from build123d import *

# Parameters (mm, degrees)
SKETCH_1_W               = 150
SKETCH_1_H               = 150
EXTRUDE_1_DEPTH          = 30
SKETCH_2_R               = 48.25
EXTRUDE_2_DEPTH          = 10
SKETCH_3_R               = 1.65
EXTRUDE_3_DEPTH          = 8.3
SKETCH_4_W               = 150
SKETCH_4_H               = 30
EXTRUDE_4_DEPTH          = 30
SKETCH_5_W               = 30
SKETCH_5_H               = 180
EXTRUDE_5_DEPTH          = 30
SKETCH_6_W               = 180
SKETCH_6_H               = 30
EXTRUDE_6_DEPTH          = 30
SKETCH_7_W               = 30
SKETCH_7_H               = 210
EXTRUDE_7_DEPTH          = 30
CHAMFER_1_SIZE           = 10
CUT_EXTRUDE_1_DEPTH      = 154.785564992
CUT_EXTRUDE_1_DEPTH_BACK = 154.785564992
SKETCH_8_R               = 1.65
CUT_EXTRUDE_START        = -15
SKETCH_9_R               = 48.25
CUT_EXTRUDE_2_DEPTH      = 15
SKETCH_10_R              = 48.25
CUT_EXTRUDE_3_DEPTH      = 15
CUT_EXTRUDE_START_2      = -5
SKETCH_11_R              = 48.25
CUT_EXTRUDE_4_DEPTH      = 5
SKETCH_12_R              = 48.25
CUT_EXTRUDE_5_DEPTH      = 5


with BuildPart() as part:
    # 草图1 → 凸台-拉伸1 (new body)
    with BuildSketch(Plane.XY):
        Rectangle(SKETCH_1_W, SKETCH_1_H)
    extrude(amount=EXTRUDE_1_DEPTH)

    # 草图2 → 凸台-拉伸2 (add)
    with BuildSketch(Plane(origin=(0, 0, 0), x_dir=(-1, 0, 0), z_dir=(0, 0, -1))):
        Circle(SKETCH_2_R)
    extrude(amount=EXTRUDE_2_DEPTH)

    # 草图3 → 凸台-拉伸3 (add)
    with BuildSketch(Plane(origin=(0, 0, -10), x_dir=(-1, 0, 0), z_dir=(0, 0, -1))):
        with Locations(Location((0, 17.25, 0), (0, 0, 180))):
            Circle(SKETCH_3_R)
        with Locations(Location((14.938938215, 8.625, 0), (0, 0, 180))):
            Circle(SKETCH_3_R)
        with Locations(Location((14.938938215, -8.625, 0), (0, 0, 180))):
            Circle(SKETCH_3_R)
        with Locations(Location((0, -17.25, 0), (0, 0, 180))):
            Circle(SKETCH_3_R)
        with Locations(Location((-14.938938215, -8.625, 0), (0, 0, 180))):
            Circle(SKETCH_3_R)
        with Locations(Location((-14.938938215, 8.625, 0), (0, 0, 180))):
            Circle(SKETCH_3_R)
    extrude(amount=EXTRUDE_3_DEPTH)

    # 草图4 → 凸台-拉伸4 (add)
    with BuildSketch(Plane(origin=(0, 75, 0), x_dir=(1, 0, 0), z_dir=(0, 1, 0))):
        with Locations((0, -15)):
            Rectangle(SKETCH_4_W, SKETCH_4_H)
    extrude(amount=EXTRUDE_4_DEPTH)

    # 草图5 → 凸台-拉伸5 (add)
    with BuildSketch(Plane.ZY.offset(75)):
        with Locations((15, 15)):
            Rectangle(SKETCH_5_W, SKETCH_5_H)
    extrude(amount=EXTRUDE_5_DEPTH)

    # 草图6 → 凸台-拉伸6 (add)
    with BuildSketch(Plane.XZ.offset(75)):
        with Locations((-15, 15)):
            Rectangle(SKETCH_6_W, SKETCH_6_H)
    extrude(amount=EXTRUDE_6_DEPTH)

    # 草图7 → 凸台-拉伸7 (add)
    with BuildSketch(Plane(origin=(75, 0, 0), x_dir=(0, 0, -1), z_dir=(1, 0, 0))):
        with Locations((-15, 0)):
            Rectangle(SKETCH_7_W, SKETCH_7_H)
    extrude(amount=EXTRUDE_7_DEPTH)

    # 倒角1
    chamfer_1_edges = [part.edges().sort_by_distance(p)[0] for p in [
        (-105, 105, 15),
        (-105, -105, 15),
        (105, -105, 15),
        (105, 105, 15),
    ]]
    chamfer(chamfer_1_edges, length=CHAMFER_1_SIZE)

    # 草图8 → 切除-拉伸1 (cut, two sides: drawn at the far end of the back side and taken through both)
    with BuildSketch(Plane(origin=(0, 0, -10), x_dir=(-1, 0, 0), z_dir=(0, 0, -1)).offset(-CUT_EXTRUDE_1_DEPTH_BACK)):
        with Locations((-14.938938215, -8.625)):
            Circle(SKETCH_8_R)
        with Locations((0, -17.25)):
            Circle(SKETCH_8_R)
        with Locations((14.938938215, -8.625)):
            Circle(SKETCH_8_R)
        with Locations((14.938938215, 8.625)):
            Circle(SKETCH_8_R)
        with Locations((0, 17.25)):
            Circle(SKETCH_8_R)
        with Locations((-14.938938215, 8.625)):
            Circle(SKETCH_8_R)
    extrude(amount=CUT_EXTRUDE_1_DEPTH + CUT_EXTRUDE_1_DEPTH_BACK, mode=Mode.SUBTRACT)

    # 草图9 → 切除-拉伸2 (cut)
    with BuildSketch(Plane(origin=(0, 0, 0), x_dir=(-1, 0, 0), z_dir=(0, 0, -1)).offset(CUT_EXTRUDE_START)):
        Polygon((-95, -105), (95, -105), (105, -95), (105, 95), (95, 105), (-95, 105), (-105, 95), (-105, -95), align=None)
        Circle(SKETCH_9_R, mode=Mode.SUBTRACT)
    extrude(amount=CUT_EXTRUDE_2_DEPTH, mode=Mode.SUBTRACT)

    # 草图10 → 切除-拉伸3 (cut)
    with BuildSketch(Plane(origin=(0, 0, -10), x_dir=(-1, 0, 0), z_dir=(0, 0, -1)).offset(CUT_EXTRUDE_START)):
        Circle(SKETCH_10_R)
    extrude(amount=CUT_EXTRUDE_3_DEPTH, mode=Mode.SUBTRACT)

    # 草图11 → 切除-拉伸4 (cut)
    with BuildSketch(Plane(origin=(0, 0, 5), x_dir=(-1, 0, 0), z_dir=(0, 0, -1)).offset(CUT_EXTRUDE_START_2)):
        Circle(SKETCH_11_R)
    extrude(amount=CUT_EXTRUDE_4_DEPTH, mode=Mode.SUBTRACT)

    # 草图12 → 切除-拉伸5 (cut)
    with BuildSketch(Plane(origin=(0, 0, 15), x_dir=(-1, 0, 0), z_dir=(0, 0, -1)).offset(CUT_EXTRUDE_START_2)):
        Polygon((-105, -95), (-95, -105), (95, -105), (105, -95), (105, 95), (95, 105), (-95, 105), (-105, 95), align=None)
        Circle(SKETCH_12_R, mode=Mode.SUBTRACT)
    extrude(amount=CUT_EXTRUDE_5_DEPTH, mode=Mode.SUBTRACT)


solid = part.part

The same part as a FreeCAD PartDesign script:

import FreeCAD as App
import Part
import Sketcher
from FreeCAD import Vector
Q = App.Units.Quantity


def edges_at(feature, points):
    """Names of the edges that pass closest to the given points."""
    edges = feature.Shape.Edges
    near = lambda p: min(range(len(edges)), key=lambda i: edges[i].distToShape(Part.Vertex(*p))[0])
    return sorted({f"Edge{near(p) + 1}" for p in points})


def add_polygon(sketch, points):
    """Adds a closed chain of lines whose ends are joined by coincident constraints."""
    first, n = sketch.GeometryCount, len(points)
    for a, b in zip(points, points[1:] + points[:1]):
        sketch.addGeometry(Part.LineSegment(App.Vector(*a, 0), App.Vector(*b, 0)), False)
    for i in range(n):
        sketch.addConstraint(Sketcher.Constraint("Coincident", first + i, 2, first + (i + 1) % n, 1))

doc = App.newDocument("Part")
body = doc.addObject("PartDesign::Body", "Body")

# Sketch on XY plane
sketch1 = body.newObject("Sketcher::SketchObject", "Sketch")
sketch1.AttachmentSupport = (doc.getObject("XY_Plane"), [""])
sketch1.MapMode = "FlatFace"
add_polygon(sketch1, [(-75, 75), (-75, -75), (75, -75), (75, 75)])  # lines 0-3
sketch1.addConstraint([
    Sketcher.Constraint("Vertical", 0),
    Sketcher.Constraint("Horizontal", 1),
    Sketcher.Constraint("Vertical", 2),
    Sketcher.Constraint("Horizontal", 3),
    Sketcher.Constraint("Symmetric", 0, 2, 2, 2, -1, 1),
    Sketcher.Constraint("Equal", 3, 0),
    Sketcher.Constraint("DistanceX", 1, 1, 1, 2, Q("150 mm")),
])
pad1 = body.newObject("PartDesign::Pad", "Pad")
pad1.Profile = sketch1
pad1.Length = 30

# Sketch on XY plane
sketch2 = body.newObject("Sketcher::SketchObject", "Sketch001")
sketch2.AttachmentSupport = (doc.getObject("XY_Plane"), [""])
sketch2.MapMode = "FlatFace"
sketch2.addGeometry(Part.Circle(Vector(0, 0, 0), Vector(0, 0, 1), 48), False)
sketch2.addConstraint([
    Sketcher.Constraint("Coincident", 0, 3, -1, 1),
    Sketcher.Constraint("Diameter", 0, Q("96.5 mm")),
])
pad2 = body.newObject("PartDesign::Pad", "Pad001")
pad2.Profile = sketch2
pad2.Length = 10
pad2.Reversed = True

# Sketch on XY plane
sketch3 = body.newObject("Sketcher::SketchObject", "Sketch002")
sketch3.AttachmentSupport = (doc.getObject("XY_Plane"), [""])
sketch3.MapMode = "FlatFace"
sketch3.AttachmentOffset = App.Placement(Vector(0, 0, -10), App.Rotation())
sketch3.addGeometry([
    Part.Circle(Vector(0, 17.2, 0), Vector(0, 0, 1), 1.6),  # 0
    Part.Circle(Vector(-14.9, 8.6, 0), Vector(0, 0, 1), 1.6),  # 1
    Part.Circle(Vector(-14.9, -8.6, 0), Vector(0, 0, 1), 1.6),  # 2
    Part.Circle(Vector(0, -17.2, 0), Vector(0, 0, 1), 1.6),  # 3
    Part.Circle(Vector(14.9, -8.6, 0), Vector(0, 0, 1), 1.6),  # 4
    Part.Circle(Vector(14.9, 8.6, 0), Vector(0, 0, 1), 1.6),  # 5
], False)
sketch3.addConstraint([
    Sketcher.Constraint("Equal", 0, 1),
    Sketcher.Constraint("Equal", 1, 2),
    Sketcher.Constraint("Equal", 2, 3),
    Sketcher.Constraint("Equal", 3, 4),
    Sketcher.Constraint("Equal", 4, 5),
    Sketcher.Constraint("Symmetric", 0, 3, 3, 3, -1, 1),
    Sketcher.Constraint("Symmetric", 1, 3, 4, 3, -1, 1),
    Sketcher.Constraint("Symmetric", 2, 3, 5, 3, -1, 1),
    Sketcher.Constraint("Symmetric", 2, 3, 4, 3, -2),
    Sketcher.Constraint("PointOnObject", 0, 3, -2),
    Sketcher.Constraint("Diameter", 0, Q("3.3 mm")),
    Sketcher.Constraint("DistanceY", 3, 3, 0, 3, Q("34.5 mm")),
    Sketcher.Constraint("DistanceY", 2, 3, 1, 3, Q("17.25 mm")),
    Sketcher.Constraint("DistanceX", 1, 3, -1, 1, Q("14.938938 mm")),
])
pad3 = body.newObject("PartDesign::Pad", "Pad002")
pad3.Profile = sketch3
pad3.Length = 8.3
pad3.Reversed = True

# Sketch on XZ plane
sketch4 = body.newObject("Sketcher::SketchObject", "Sketch003")
sketch4.AttachmentSupport = (doc.getObject("XZ_Plane"), [""])
sketch4.MapMode = "FlatFace"
sketch4.AttachmentOffset = App.Placement(Vector(0, 0, -75), App.Rotation())
add_polygon(sketch4, [(-75, 0), (-75, 30), (75, 30), (75, 0)])  # lines 0-3
sketch4.addConstraint([
    Sketcher.Constraint("Vertical", 0),
    Sketcher.Constraint("Horizontal", 1),
    Sketcher.Constraint("Vertical", 2),
    Sketcher.Constraint("Horizontal", 3),
    Sketcher.Constraint("Symmetric", 2, 2, 3, 2, -1, 1),
    Sketcher.Constraint("DistanceX", 1, 1, 1, 2, Q("150 mm")),
    Sketcher.Constraint("DistanceY", 0, 1, 0, 2, Q("30 mm")),
])
pad4 = body.newObject("PartDesign::Pad", "Pad003")
pad4.Profile = sketch4
pad4.Length = 30
pad4.Reversed = True

# Sketch on YZ plane
sketch5 = body.newObject("Sketcher::SketchObject", "Sketch004")
sketch5.AttachmentSupport = (doc.getObject("YZ_Plane"), [""])
sketch5.MapMode = "FlatFace"
sketch5.AttachmentOffset = App.Placement(Vector(0, 0, -75), App.Rotation())
add_polygon(sketch5, [(105, 0), (-75, 0), (-75, 30), (105, 30)])  # lines 0-3
sketch5.addConstraint([
    Sketcher.Constraint("Horizontal", 0),
    Sketcher.Constraint("Vertical", 1),
    Sketcher.Constraint("Horizontal", 2),
    Sketcher.Constraint("Vertical", 3),
    Sketcher.Constraint("PointOnObject", 0, 2, -1),
    Sketcher.Constraint("DistanceX", 0, 2, 0, 1, Q("180 mm")),
    Sketcher.Constraint("DistanceY", 1, 1, 1, 2, Q("30 mm")),
    Sketcher.Constraint("DistanceX", 0, 2, -1, 1, Q("75 mm")),
])
pad5 = body.newObject("PartDesign::Pad", "Pad004")
pad5.Profile = sketch5
pad5.Length = 30
pad5.Reversed = True

# Sketch on XZ plane
sketch6 = body.newObject("Sketcher::SketchObject", "Sketch005")
sketch6.AttachmentSupport = (doc.getObject("XZ_Plane"), [""])
sketch6.MapMode = "FlatFace"
sketch6.AttachmentOffset = App.Placement(Vector(0, 0, 75), App.Rotation())
add_polygon(sketch6, [(-105, 30), (-105, 0), (75, 0), (75, 30)])  # lines 0-3
sketch6.addConstraint([
    Sketcher.Constraint("Vertical", 0),
    Sketcher.Constraint("Horizontal", 1),
    Sketcher.Constraint("Vertical", 2),
    Sketcher.Constraint("Horizontal", 3),
    Sketcher.Constraint("PointOnObject", 0, 2, -1),
    Sketcher.Constraint("DistanceX", 1, 1, 1, 2, Q("180 mm")),
    Sketcher.Constraint("DistanceY", 0, 2, 0, 1, Q("30 mm")),
    Sketcher.Constraint("DistanceX", 0, 2, -1, 1, Q("105 mm")),
])
pad6 = body.newObject("PartDesign::Pad", "Pad005")
pad6.Profile = sketch6
pad6.Length = 30

# Sketch on YZ plane
sketch7 = body.newObject("Sketcher::SketchObject", "Sketch006")
sketch7.AttachmentSupport = (doc.getObject("YZ_Plane"), [""])
sketch7.MapMode = "FlatFace"
sketch7.AttachmentOffset = App.Placement(Vector(0, 0, 75), App.Rotation())
add_polygon(sketch7, [(105, 30), (-105, 30), (-105, 0), (105, 0)])  # lines 0-3
sketch7.addConstraint([
    Sketcher.Constraint("Horizontal", 0),
    Sketcher.Constraint("Vertical", 1),
    Sketcher.Constraint("Horizontal", 2),
    Sketcher.Constraint("Vertical", 3),
    Sketcher.Constraint("Symmetric", 1, 2, 2, 2, -1, 1),
    Sketcher.Constraint("DistanceX", 0, 2, 0, 1, Q("210 mm")),
    Sketcher.Constraint("DistanceY", 1, 2, 1, 1, Q("30 mm")),
])
pad7 = body.newObject("PartDesign::Pad", "Pad006")
pad7.Profile = sketch7
pad7.Length = 30
doc.recompute()

chamfer = body.newObject("PartDesign::Chamfer", "Chamfer")
chamfer.Base = (pad7, edges_at(pad7, [
    (-105, 105, 15),
    (-105, -105, 15),
    (105, -105, 15),
    (105, 105, 15),
]))
chamfer.Size = 10

# Sketch on XY plane
sketch8 = body.newObject("Sketcher::SketchObject", "Sketch007")
sketch8.AttachmentSupport = (doc.getObject("XY_Plane"), [""])
sketch8.MapMode = "FlatFace"
sketch8.AttachmentOffset = App.Placement(Vector(0, 0, -10), App.Rotation())
sketch8.addGeometry([
    Part.Circle(Vector(14.9, -8.6, 0), Vector(0, 0, 1), 1.6),  # 0
    Part.Circle(Vector(0, -17.2, 0), Vector(0, 0, 1), 1.6),  # 1
    Part.Circle(Vector(-14.9, -8.6, 0), Vector(0, 0, 1), 1.6),  # 2
    Part.Circle(Vector(-14.9, 8.6, 0), Vector(0, 0, 1), 1.6),  # 3
    Part.Circle(Vector(0, 17.2, 0), Vector(0, 0, 1), 1.6),  # 4
    Part.Circle(Vector(14.9, 8.6, 0), Vector(0, 0, 1), 1.6),  # 5
], False)
sketch8.addConstraint([
    Sketcher.Constraint("Equal", 0, 1),
    Sketcher.Constraint("Equal", 1, 2),
    Sketcher.Constraint("Equal", 2, 3),
    Sketcher.Constraint("Equal", 3, 4),
    Sketcher.Constraint("Equal", 4, 5),
    Sketcher.Constraint("Symmetric", 0, 3, 3, 3, -1, 1),
    Sketcher.Constraint("Symmetric", 1, 3, 4, 3, -1, 1),
    Sketcher.Constraint("Symmetric", 2, 3, 5, 3, -1, 1),
    Sketcher.Constraint("Symmetric", 0, 3, 2, 3, -2),
    Sketcher.Constraint("PointOnObject", 1, 3, -2),
    Sketcher.Constraint("Diameter", 0, Q("3.3 mm")),
    Sketcher.Constraint("DistanceY", 1, 3, 4, 3, Q("34.5 mm")),
    Sketcher.Constraint("DistanceY", 2, 3, 3, 3, Q("17.25 mm")),
    Sketcher.Constraint("DistanceX", -1, 1, 0, 3, Q("14.938938 mm")),
])
pocket1 = body.newObject("PartDesign::Pocket", "Pocket")
pocket1.Profile = sketch8
pocket1.Type = "ThroughAll"
pocket1.Midplane = True

# Sketch on XY plane
sketch9 = body.newObject("Sketcher::SketchObject", "Sketch008")
sketch9.AttachmentSupport = (doc.getObject("XY_Plane"), [""])
sketch9.MapMode = "FlatFace"
sketch9.AttachmentOffset = App.Placement(Vector(0, 0, 15), App.Rotation())
add_polygon(sketch9, [(95, -105), (-95, -105), (-105, -95), (-105, 95), (-95, 105), (95, 105), (105, 95), (105, -95)])  # lines 0-7
sketch9.addGeometry(Part.Circle(Vector(0, 0, 0), Vector(0, 0, 1), 48), False)  # 8
sketch9.addConstraint([
    Sketcher.Constraint("Horizontal", 0),
    Sketcher.Constraint("Vertical", 2),
    Sketcher.Constraint("Horizontal", 4),
    Sketcher.Constraint("Vertical", 6),
    Sketcher.Constraint("Coincident", 8, 3, -1, 1),
    Sketcher.Constraint("Symmetric", 0, 2, 4, 2, -1, 1),
    Sketcher.Constraint("Symmetric", 1, 2, 5, 2, -1, 1),
    Sketcher.Constraint("Perpendicular", 1, 3),
    Sketcher.Constraint("Perpendicular", 5, 7),
    Sketcher.Constraint("Horizontal", 2, 2, 5, 2),
    Sketcher.Constraint("Horizontal", 1, 2, 6, 2),
    Sketcher.Constraint("Vertical", 0, 2, 3, 2),
    Sketcher.Constraint("Equal", 4, 2),
    Sketcher.Constraint("Diameter", 8, Q("96.5 mm")),
    Sketcher.Constraint("DistanceX", 0, 2, 0, 1, Q("190 mm")),
    Sketcher.Constraint("DistanceY", 0, 2, -1, 1, Q("105 mm")),
])
pocket2 = body.newObject("PartDesign::Pocket", "Pocket001")
pocket2.Profile = sketch9
pocket2.Length = 15

# Sketch on XY plane
sketch10 = body.newObject("Sketcher::SketchObject", "Sketch009")
sketch10.AttachmentSupport = (doc.getObject("XY_Plane"), [""])
sketch10.MapMode = "FlatFace"
sketch10.AttachmentOffset = App.Placement(Vector(0, 0, 5), App.Rotation())
sketch10.addGeometry(Part.Circle(Vector(0, 0, 0), Vector(0, 0, 1), 48), False)
sketch10.addConstraint([
    Sketcher.Constraint("Coincident", 0, 3, -1, 1),
    Sketcher.Constraint("Diameter", 0, Q("96.5 mm")),
])
pocket3 = body.newObject("PartDesign::Pocket", "Pocket002")
pocket3.Profile = sketch10
pocket3.Length = 15

# Sketch on XY plane
sketch11 = body.newObject("Sketcher::SketchObject", "Sketch010")
sketch11.AttachmentSupport = (doc.getObject("XY_Plane"), [""])
sketch11.MapMode = "FlatFace"
sketch11.AttachmentOffset = App.Placement(Vector(0, 0, 10), App.Rotation())
sketch11.addGeometry(Part.Circle(Vector(0, 0, 0), Vector(0, 0, 1), 48), False)
sketch11.addConstraint([
    Sketcher.Constraint("Coincident", 0, 3, -1, 1),
    Sketcher.Constraint("Diameter", 0, Q("96.5 mm")),
])
pocket4 = body.newObject("PartDesign::Pocket", "Pocket003")
pocket4.Profile = sketch11
pocket4.Length = 5

# Sketch on XY plane
sketch12 = body.newObject("Sketcher::SketchObject", "Sketch011")
sketch12.AttachmentSupport = (doc.getObject("XY_Plane"), [""])
sketch12.MapMode = "FlatFace"
sketch12.AttachmentOffset = App.Placement(Vector(0, 0, 20), App.Rotation())
add_polygon(sketch12, [(105, -95), (95, -105), (-95, -105), (-105, -95), (-105, 95), (-95, 105), (95, 105), (105, 95)])  # lines 0-7
sketch12.addGeometry(Part.Circle(Vector(0, 0, 0), Vector(0, 0, 1), 48), False)  # 8
sketch12.addConstraint([
    Sketcher.Constraint("Horizontal", 1),
    Sketcher.Constraint("Vertical", 3),
    Sketcher.Constraint("Horizontal", 5),
    Sketcher.Constraint("Vertical", 7),
    Sketcher.Constraint("Coincident", 8, 3, -1, 1),
    Sketcher.Constraint("Symmetric", 0, 2, 4, 2, -1, 1),
    Sketcher.Constraint("Symmetric", 2, 2, 6, 2, -1, 1),
    Sketcher.Constraint("Perpendicular", 0, 2),
    Sketcher.Constraint("Perpendicular", 2, 4),
    Sketcher.Constraint("Perpendicular", 4, 6),
    Sketcher.Constraint("Horizontal", 3, 2, 6, 2),
    Sketcher.Constraint("Vertical", 1, 2, 4, 2),
    Sketcher.Constraint("Equal", 5, 3),
    Sketcher.Constraint("Diameter", 8, Q("96.5 mm")),
    Sketcher.Constraint("DistanceX", 1, 2, 1, 1, Q("190 mm")),
    Sketcher.Constraint("DistanceY", 0, 2, -1, 1, Q("105 mm")),
])
pocket5 = body.newObject("PartDesign::Pocket", "Pocket004")
pocket5.Profile = sketch12
pocket5.Length = 5

doc.recompute()
